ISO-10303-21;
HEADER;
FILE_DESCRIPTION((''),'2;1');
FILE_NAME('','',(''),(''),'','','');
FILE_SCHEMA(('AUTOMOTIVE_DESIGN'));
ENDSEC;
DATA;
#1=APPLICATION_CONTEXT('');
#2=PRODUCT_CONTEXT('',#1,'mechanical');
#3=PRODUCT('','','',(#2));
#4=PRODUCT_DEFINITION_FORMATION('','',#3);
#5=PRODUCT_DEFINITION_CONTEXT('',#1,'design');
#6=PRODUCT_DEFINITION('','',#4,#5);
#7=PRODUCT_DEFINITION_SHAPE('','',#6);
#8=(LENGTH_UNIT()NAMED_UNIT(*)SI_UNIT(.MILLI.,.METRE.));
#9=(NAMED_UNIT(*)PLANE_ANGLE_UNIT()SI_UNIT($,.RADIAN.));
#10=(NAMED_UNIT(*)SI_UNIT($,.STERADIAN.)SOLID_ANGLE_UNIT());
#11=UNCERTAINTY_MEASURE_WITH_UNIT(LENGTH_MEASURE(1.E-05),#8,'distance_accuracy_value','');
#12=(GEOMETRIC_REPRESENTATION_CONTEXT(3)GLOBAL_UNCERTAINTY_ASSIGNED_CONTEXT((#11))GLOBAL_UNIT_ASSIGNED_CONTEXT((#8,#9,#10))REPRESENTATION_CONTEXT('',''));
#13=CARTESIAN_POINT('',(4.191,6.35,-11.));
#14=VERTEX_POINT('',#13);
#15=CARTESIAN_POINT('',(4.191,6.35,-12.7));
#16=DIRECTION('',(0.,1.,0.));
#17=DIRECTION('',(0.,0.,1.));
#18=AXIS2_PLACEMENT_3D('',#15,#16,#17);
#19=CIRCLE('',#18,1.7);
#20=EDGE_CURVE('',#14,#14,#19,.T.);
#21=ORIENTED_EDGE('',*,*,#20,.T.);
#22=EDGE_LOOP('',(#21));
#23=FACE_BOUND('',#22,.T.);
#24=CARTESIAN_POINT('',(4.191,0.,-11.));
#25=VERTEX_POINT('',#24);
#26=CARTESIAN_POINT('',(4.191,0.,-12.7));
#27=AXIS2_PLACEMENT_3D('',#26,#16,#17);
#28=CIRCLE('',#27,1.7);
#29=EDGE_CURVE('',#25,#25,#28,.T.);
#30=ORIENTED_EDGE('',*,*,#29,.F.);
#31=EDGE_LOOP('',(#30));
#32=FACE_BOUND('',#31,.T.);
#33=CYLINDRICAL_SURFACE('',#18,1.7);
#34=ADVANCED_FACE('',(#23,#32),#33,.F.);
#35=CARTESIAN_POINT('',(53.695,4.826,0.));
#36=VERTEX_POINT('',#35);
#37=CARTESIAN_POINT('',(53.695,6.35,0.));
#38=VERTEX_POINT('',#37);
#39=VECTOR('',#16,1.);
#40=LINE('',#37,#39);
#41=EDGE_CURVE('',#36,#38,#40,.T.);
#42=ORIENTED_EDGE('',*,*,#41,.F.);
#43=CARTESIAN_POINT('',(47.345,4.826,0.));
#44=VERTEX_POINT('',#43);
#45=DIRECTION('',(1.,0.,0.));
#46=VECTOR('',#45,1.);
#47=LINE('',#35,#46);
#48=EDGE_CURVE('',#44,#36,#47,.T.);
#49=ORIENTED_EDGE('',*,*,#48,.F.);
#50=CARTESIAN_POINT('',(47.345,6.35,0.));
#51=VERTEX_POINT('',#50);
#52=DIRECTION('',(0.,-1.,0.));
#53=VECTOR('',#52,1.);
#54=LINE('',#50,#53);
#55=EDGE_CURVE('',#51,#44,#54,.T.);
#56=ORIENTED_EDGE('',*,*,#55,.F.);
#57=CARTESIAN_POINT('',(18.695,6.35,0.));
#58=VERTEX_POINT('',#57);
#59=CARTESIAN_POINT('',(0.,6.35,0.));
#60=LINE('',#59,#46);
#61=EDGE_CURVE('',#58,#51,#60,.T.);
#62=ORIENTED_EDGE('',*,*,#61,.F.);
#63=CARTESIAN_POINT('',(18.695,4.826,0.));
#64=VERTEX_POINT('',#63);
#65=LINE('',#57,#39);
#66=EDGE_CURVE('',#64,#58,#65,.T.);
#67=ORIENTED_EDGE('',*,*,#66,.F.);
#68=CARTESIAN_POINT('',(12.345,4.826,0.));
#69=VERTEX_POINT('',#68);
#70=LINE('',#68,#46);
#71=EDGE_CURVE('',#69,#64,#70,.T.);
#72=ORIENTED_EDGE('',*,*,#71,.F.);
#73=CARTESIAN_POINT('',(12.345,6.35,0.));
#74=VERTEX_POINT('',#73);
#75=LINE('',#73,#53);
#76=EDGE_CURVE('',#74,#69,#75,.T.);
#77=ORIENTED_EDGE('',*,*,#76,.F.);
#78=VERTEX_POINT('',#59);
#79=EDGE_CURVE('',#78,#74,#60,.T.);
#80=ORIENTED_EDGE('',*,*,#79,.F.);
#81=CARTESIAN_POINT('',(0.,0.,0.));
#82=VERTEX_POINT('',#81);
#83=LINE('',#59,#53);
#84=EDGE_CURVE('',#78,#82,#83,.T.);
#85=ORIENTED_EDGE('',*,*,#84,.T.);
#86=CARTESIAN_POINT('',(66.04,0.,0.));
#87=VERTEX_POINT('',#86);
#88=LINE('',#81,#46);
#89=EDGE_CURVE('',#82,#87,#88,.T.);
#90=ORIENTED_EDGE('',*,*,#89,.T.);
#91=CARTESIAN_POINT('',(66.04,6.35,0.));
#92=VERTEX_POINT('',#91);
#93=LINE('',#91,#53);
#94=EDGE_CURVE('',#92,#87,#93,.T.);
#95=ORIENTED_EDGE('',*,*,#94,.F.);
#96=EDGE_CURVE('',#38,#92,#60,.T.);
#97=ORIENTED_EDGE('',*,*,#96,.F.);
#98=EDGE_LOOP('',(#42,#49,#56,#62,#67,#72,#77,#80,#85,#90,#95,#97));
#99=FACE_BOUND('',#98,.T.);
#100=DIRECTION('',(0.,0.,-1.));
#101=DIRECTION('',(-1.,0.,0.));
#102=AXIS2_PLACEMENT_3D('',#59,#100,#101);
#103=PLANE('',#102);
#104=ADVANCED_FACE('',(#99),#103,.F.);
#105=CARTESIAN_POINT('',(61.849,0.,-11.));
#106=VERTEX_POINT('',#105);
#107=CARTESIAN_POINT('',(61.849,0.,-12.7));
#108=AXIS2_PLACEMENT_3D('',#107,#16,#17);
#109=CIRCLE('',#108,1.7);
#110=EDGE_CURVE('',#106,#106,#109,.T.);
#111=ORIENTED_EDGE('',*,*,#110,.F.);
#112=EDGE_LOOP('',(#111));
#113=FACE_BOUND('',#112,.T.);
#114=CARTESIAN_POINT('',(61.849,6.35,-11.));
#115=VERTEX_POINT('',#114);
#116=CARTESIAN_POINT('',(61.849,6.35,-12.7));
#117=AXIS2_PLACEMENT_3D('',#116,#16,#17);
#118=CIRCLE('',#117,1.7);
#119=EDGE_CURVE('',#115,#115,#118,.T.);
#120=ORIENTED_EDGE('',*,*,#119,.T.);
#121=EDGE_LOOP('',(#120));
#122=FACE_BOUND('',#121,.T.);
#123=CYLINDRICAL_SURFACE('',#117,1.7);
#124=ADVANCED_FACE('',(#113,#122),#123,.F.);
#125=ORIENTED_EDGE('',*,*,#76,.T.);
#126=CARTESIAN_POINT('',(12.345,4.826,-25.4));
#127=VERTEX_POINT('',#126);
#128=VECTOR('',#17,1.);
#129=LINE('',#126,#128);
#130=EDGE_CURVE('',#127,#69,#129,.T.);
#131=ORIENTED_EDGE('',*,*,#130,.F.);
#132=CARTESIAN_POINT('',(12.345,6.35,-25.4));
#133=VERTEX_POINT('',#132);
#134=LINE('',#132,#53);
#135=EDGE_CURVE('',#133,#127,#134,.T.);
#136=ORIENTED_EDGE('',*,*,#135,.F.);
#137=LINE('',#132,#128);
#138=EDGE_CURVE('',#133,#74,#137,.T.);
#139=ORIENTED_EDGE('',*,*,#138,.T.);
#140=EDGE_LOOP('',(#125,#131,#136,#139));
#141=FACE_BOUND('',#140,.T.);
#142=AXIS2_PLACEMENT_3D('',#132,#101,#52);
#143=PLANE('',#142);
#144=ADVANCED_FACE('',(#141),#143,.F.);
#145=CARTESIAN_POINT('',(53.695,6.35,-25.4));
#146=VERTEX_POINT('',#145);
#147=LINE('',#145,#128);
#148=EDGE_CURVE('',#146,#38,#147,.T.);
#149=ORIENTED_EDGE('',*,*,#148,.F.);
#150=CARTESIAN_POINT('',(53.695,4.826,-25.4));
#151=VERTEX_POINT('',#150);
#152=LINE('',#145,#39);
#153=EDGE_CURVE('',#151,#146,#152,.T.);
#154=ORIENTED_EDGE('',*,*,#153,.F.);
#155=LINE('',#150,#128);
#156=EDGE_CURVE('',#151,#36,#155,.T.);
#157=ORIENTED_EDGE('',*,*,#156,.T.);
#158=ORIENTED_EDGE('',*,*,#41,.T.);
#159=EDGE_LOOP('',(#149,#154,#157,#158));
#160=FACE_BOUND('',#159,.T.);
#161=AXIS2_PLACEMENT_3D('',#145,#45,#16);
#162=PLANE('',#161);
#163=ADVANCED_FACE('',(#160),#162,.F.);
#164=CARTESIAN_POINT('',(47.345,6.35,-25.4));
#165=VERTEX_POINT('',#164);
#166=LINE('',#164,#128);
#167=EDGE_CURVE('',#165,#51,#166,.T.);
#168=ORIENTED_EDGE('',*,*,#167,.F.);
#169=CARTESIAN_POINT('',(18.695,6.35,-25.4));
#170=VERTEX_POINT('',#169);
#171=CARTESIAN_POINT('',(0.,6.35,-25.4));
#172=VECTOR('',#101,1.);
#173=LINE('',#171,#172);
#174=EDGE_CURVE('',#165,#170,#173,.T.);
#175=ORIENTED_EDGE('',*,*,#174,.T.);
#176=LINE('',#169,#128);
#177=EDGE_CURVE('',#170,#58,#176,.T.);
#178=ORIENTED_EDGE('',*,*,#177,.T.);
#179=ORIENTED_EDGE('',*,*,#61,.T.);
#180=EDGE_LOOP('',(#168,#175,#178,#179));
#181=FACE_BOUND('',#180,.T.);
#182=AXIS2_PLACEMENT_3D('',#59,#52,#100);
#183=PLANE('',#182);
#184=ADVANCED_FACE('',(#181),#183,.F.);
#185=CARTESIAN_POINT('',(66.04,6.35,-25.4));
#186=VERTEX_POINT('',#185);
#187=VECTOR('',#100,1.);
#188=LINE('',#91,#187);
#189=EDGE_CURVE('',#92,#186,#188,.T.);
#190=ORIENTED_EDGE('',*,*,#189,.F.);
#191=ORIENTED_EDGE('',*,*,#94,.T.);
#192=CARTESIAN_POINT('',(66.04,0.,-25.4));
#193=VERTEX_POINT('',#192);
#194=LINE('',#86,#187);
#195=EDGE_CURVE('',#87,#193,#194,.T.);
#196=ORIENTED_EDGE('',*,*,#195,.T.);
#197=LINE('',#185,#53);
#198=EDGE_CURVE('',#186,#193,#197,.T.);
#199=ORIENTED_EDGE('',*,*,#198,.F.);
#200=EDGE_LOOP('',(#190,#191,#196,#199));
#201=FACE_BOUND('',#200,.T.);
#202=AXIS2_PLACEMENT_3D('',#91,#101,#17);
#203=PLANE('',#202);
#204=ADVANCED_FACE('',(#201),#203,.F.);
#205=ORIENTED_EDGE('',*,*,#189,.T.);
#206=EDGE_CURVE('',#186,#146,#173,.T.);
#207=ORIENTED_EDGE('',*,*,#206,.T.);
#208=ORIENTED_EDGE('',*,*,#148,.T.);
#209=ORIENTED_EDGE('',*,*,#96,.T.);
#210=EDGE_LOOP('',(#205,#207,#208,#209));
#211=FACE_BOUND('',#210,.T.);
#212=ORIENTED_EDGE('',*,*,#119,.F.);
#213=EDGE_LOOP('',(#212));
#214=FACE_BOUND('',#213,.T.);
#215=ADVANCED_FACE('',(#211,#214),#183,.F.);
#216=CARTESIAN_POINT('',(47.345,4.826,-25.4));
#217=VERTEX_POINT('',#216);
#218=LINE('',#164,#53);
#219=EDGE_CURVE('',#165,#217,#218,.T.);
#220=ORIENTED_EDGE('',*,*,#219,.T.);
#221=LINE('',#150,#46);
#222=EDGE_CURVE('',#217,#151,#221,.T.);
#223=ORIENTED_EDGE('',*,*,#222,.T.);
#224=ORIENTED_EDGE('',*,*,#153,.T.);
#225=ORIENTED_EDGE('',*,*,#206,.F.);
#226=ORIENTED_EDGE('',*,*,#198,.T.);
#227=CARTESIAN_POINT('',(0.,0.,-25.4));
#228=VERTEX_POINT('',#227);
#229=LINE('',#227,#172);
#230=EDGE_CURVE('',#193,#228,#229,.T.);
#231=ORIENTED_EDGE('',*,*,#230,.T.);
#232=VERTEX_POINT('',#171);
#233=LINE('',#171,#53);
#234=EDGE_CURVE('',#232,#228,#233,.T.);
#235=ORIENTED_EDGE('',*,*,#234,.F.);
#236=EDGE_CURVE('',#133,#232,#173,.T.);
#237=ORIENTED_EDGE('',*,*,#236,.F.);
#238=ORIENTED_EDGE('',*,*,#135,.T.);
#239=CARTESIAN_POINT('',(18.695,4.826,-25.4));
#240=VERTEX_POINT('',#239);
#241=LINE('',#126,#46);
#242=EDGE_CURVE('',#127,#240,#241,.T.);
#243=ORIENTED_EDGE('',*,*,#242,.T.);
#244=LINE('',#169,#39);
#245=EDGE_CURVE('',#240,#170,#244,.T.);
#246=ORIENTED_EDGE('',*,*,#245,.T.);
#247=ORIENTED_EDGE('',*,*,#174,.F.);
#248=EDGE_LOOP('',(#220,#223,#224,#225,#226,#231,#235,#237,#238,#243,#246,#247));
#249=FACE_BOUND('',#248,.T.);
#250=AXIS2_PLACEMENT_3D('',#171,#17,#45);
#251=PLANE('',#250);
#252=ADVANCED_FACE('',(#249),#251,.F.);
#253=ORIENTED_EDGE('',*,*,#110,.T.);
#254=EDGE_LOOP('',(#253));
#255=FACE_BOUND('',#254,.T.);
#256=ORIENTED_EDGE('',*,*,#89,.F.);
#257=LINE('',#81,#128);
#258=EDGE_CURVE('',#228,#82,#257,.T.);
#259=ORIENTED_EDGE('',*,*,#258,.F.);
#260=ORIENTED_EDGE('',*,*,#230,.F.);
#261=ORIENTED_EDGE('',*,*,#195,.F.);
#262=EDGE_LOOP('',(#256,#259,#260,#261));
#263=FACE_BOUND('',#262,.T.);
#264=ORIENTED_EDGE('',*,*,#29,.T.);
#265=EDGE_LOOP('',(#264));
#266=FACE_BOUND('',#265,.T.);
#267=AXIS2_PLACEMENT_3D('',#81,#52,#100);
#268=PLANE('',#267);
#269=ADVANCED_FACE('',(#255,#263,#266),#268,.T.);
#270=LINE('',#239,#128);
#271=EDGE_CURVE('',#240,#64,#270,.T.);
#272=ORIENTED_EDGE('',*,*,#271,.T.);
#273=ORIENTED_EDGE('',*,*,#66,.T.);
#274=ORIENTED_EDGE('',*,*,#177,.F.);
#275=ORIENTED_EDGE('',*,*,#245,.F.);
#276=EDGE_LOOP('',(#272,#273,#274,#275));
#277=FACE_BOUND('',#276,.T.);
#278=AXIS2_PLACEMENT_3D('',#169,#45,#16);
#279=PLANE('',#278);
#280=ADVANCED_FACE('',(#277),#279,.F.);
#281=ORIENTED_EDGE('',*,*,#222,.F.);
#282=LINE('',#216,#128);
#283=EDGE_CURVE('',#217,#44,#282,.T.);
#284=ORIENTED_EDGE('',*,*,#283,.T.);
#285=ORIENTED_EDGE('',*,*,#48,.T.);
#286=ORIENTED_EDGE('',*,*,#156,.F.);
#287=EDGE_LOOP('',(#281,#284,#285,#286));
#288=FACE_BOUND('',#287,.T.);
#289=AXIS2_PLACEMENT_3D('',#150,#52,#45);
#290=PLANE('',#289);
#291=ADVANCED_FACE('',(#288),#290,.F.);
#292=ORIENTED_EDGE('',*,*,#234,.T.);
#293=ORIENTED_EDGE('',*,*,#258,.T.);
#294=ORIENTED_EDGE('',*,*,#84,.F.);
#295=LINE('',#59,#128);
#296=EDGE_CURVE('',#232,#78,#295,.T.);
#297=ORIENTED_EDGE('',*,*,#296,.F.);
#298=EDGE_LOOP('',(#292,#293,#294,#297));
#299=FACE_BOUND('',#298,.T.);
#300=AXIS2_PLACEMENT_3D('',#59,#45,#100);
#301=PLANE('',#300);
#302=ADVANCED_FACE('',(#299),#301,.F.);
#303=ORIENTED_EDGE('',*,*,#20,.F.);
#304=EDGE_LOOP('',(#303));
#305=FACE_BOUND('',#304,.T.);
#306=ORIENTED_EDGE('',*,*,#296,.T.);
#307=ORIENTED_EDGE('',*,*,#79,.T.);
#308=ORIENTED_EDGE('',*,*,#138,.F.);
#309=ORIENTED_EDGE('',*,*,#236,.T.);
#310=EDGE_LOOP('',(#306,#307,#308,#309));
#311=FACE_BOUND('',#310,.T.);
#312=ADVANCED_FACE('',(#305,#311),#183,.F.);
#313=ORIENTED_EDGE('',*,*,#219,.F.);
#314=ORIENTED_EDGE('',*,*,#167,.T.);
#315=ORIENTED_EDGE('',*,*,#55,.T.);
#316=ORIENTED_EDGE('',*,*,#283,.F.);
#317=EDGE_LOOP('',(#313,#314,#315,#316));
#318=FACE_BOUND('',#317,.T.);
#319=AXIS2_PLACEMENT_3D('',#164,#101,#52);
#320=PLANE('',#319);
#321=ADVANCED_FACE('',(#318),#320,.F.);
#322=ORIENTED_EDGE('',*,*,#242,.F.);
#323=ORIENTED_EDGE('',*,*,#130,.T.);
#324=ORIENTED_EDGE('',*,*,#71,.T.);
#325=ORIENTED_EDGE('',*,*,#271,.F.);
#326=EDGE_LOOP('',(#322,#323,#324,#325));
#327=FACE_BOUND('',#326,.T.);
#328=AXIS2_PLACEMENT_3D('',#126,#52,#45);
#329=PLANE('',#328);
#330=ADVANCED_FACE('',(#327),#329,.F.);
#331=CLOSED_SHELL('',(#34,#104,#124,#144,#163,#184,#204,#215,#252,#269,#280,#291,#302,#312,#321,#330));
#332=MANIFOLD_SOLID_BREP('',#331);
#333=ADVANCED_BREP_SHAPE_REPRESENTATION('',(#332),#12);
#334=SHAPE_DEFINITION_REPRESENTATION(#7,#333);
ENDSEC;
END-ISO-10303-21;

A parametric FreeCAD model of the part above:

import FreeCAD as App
import Part
import Sketcher
from FreeCAD import Vector
Q = App.Units.Quantity


def add_polygon(sketch, points):
    """Adds a closed chain of lines whose ends are joined by coincident constraints."""
    first, n = sketch.GeometryCount, len(points)
    for a, b in zip(points, points[1:] + points[:1]):
        sketch.addGeometry(Part.LineSegment(App.Vector(*a, 0), App.Vector(*b, 0)), False)
    for i in range(n):
        sketch.addConstraint(Sketcher.Constraint("Coincident", first + i, 2, first + (i + 1) % n, 1))

doc = App.newDocument("Part")
params = doc.addObject("Spreadsheet::Sheet", "Params")
for row, (alias, value) in enumerate([
    ("sketch1_height", "1 in"),
    ("sketch1_width", "2.6 in"),
    ("pad1_length", "0.25 in"),
    ("hole_diameter", "3.4 mm"),
    ("sketch3_width", "0.25 in"),
    ("sketch3_height", "0.06 in"),
], start=1):
    params.set(f"A{row}", alias)
    params.set(f"B{row}", "=" + value)
    params.setAlias(f"B{row}", alias)

body = doc.addObject("PartDesign::Body", "Body")

# Sketch on XZ plane
sketch1 = doc.addObject("Sketcher::SketchObject", "Sketch")
body.addObject(sketch1)
sketch1.AttachmentSupport = (doc.XZ_Plane, [""])
sketch1.MapMode = "FlatFace"
add_polygon(sketch1, [(0, -25.4), (0, 0), (66.04, 0), (66.04, -25.4)])  # lines 0-3
sketch1.addConstraint(Sketcher.Constraint("Vertical", 0))
sketch1.addConstraint(Sketcher.Constraint("Horizontal", 1))
sketch1.addConstraint(Sketcher.Constraint("Vertical", 2))
sketch1.addConstraint(Sketcher.Constraint("Horizontal", 3))
sketch1.addConstraint(Sketcher.Constraint("Coincident", 0, 2, -1, 1))
sketch1.addConstraint(Sketcher.Constraint("DistanceY", 0, 1, 0, 2, Q("1 in")))
sketch1.addConstraint(Sketcher.Constraint("DistanceX", 1, 1, 1, 2, Q("2.6 in")))
sketch1.setExpression("Constraints[9]", "Params.sketch1_height")
sketch1.setExpression("Constraints[10]", "Params.sketch1_width")
pad1 = doc.addObject("PartDesign::Pad", "Pad")
body.addObject(pad1)
pad1.Profile = sketch1
pad1.setExpression("Length", "Params.pad1_length")
pad1.Reversed = True

# Sketch on XZ plane
sketch2 = doc.addObject("Sketcher::SketchObject", "Sketch001")
body.addObject(sketch2)
sketch2.AttachmentSupport = (doc.XZ_Plane, [""])
sketch2.MapMode = "FlatFace"
sketch2.AttachmentOffset = App.Placement(Vector(0, 0, -0.25 * 25.4), App.Rotation())
sketch2.addGeometry(Part.Circle(Vector(4.191, -12.7, 0), Vector(0, 0, 1), 1.7), False)
sketch2.addGeometry(Part.Circle(Vector(61.849, -12.7, 0), Vector(0, 0, 1), 1.7), False)
sketch2.addConstraint(Sketcher.Constraint("Equal", 0, 1))
sketch2.addConstraint(Sketcher.Constraint("Horizontal", 0, 3, 1, 3))
sketch2.addConstraint(Sketcher.Constraint("DistanceY", 0, 3, -1, 1, Q("0.5 in")))
sketch2.addConstraint(Sketcher.Constraint("Diameter", 0, Q("3.4 mm")))
sketch2.addConstraint(Sketcher.Constraint("DistanceX", 0, 3, 1, 3, Q("2.27 in")))
sketch2.addConstraint(Sketcher.Constraint("DistanceX", -1, 1, 0, 3, Q("0.165 in")))
doc.recompute()
hole = doc.addObject("PartDesign::Hole", "Hole")
body.addObject(hole)
hole.Profile = sketch2
hole.ThreadType = "None"
hole.setExpression("Diameter", "Params.hole_diameter")
hole.DepthType = "ThroughAll"
hole.Reversed = True

# Sketch on XY plane
sketch3 = doc.addObject("Sketcher::SketchObject", "Sketch002")
body.addObject(sketch3)
sketch3.AttachmentSupport = (doc.XY_Plane, [""])
sketch3.MapMode = "FlatFace"
add_polygon(sketch3, [(47.345, 6.35), (47.345, 4.826), (53.695, 4.826), (53.695, 6.35)])  # lines 0-3
add_polygon(sketch3, [(12.345, 6.35), (12.345, 4.826), (18.695, 4.826), (18.695, 6.35)])  # lines 4-7
sketch3.addConstraint(Sketcher.Constraint("Vertical", 0))
sketch3.addConstraint(Sketcher.Constraint("Horizontal", 1))
sketch3.addConstraint(Sketcher.Constraint("Vertical", 2))
sketch3.addConstraint(Sketcher.Constraint("Horizontal", 3))
sketch3.addConstraint(Sketcher.Constraint("Vertical", 4))
sketch3.addConstraint(Sketcher.Constraint("Horizontal", 5))
sketch3.addConstraint(Sketcher.Constraint("Vertical", 6))
sketch3.addConstraint(Sketcher.Constraint("Horizontal", 7))
sketch3.addConstraint(Sketcher.Constraint("Horizontal", 1, 2, 4, 2))
sketch3.addConstraint(Sketcher.Constraint("Horizontal", 3, 2, 6, 2))
sketch3.addConstraint(Sketcher.Constraint("Equal", 3, 5))
sketch3.addConstraint(Sketcher.Constraint("DistanceX", 1, 1, 1, 2, Q("0.25 in")))
sketch3.addConstraint(Sketcher.Constraint("DistanceY", 0, 2, 0, 1, Q("0.06 in")))
sketch3.addConstraint(Sketcher.Constraint("DistanceY", -1, 1, 0, 2, Q("0.19 in")))
sketch3.addConstraint(Sketcher.Constraint("DistanceX", -1, 1, 0, 2, Q("47.345 mm")))
sketch3.addConstraint(Sketcher.Constraint("DistanceX", -1, 1, 4, 2, Q("12.345 mm")))
sketch3.setExpression("Constraints[19]", "Params.sketch3_width")
sketch3.setExpression("Constraints[20]", "Params.sketch3_height")
pocket1 = doc.addObject("PartDesign::Pocket", "Pocket")
body.addObject(pocket1)
pocket1.Profile = sketch3
pocket1.Type = "ThroughAll"

doc.recompute()
